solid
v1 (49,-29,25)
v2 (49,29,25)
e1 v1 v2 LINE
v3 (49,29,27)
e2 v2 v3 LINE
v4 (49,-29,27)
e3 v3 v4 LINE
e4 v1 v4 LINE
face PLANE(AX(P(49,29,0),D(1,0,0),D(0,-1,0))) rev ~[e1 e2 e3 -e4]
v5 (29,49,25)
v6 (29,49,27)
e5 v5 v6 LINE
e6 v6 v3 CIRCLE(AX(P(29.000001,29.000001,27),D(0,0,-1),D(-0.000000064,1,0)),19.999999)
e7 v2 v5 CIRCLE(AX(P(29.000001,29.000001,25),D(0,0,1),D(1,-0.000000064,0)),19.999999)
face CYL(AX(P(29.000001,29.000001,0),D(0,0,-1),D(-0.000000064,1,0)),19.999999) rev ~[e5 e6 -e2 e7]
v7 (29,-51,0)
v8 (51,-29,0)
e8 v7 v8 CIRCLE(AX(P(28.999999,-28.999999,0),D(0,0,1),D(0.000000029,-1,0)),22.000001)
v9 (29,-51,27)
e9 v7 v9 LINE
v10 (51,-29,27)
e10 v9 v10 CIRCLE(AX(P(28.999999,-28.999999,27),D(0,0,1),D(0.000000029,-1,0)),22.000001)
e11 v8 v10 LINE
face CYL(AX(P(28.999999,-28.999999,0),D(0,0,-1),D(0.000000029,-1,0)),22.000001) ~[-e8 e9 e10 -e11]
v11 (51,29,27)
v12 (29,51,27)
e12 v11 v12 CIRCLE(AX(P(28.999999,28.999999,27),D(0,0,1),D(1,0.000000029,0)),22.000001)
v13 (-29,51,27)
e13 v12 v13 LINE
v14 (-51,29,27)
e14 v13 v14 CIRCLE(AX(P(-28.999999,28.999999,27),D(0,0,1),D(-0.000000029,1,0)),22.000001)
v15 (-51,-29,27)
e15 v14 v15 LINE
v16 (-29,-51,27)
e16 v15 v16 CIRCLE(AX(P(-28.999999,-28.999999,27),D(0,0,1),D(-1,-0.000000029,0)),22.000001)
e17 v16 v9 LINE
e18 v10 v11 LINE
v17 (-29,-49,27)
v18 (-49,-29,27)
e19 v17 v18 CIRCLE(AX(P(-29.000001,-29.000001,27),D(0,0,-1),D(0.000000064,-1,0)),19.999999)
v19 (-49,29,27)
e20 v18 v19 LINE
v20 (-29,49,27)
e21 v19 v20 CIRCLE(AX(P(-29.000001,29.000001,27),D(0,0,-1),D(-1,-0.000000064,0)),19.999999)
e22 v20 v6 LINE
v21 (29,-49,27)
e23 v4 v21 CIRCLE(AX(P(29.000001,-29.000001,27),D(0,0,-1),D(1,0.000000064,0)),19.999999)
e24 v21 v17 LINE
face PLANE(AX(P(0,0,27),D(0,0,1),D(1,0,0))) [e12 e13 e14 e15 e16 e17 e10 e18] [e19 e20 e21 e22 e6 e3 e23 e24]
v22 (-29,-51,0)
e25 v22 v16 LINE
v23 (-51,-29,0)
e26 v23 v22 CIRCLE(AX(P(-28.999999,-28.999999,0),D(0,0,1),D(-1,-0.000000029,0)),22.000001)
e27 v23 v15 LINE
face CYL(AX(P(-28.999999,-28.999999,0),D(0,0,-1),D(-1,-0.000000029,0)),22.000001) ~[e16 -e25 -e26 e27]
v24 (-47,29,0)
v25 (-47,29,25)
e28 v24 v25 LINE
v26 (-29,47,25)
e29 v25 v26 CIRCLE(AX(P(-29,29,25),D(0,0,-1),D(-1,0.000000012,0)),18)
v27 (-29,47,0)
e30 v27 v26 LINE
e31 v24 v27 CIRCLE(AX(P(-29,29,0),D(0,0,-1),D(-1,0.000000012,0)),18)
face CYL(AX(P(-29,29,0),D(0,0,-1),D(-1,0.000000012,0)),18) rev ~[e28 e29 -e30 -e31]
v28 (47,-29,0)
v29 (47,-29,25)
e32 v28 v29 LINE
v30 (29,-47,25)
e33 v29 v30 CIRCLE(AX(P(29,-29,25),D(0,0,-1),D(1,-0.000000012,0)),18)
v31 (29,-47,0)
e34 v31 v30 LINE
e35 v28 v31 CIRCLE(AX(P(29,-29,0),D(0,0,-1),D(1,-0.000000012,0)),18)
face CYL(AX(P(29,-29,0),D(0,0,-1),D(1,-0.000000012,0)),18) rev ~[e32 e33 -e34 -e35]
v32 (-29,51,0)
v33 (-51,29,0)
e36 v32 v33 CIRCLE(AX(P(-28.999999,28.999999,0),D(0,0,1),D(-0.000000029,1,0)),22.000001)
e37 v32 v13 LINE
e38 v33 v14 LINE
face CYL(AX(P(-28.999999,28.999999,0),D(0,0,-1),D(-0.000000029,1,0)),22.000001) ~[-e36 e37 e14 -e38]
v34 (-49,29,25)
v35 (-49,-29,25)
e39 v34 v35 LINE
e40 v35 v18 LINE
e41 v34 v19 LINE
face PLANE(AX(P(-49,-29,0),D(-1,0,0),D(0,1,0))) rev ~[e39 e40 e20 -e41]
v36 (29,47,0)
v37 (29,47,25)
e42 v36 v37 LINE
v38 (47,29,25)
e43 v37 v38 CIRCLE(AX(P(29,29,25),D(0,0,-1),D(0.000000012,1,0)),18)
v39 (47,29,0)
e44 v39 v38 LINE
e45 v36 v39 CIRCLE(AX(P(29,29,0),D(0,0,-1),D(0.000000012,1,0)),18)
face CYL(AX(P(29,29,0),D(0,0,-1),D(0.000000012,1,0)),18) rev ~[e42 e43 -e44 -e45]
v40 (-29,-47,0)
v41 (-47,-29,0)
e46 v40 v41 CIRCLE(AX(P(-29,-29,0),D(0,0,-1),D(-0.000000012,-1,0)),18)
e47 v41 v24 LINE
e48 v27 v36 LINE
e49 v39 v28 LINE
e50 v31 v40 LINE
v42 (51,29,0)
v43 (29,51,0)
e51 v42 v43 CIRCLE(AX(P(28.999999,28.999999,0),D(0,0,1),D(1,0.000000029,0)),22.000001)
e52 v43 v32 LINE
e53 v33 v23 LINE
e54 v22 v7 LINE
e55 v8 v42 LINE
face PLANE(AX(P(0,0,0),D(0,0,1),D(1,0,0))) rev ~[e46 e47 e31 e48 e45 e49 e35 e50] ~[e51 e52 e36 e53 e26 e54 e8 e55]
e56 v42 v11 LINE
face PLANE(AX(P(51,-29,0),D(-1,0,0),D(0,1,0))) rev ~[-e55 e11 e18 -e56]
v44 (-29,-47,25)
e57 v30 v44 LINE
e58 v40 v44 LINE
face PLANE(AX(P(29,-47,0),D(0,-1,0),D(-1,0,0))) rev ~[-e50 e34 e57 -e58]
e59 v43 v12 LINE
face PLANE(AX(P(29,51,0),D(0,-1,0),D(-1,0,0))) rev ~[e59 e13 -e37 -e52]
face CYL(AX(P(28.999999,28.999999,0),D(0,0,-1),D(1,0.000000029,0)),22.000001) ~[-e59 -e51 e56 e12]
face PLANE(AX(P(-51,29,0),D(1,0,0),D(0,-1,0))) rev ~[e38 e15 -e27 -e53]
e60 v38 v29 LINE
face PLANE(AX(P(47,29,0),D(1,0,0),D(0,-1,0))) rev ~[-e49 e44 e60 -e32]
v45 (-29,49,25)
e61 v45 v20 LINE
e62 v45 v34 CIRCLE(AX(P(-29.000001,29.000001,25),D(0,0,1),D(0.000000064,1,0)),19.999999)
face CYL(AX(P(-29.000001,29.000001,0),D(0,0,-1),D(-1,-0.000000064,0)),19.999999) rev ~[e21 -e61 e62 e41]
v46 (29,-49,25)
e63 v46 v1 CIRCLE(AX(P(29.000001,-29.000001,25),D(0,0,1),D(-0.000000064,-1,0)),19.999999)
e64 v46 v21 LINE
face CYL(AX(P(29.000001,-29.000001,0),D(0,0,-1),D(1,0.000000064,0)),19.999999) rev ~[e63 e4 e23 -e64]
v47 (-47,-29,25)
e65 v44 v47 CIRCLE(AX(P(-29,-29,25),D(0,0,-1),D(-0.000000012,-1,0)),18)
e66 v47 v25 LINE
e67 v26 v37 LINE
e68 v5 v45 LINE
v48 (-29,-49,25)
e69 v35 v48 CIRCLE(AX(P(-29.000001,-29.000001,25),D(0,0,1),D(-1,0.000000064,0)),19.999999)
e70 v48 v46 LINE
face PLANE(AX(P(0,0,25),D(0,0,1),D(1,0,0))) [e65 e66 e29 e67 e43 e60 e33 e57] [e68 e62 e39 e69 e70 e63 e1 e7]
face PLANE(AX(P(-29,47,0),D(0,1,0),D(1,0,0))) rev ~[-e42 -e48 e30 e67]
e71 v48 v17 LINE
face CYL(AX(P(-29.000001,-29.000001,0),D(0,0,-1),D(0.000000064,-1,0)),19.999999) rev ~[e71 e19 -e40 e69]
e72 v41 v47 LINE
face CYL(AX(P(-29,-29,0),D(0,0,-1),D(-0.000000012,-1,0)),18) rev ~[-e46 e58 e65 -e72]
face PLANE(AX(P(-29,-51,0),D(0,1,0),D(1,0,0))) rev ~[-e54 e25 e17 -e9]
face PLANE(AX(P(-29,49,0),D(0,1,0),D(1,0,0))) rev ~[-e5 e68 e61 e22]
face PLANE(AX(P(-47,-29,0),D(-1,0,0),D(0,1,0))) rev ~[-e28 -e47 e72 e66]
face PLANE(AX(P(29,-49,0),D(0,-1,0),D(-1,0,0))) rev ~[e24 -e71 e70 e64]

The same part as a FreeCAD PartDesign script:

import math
import FreeCAD as App
import Part
import Sketcher

V = App.Vector

doc = App.newDocument("Part")
body = doc.addObject("PartDesign::Body", "Body")

sketch1 = doc.addObject("Sketcher::SketchObject", "Sketch")
body.addObject(sketch1)
sketch1.AttachmentSupport = (doc.XY_Plane, [""])
sketch1.MapMode = "FlatFace"
sketch1.addGeometry(Part.LineSegment(V(29, 49, 0), V(-29, 49, 0)), False)
sketch1.addGeometry(Part.ArcOfCircle(Part.Circle(V(-29, 29, 0), V(0, 0, 1), 20), math.radians(90), math.radians(180)), False)
sketch1.addGeometry(Part.LineSegment(V(-49, 29, 0), V(-49, -29, 0)), False)
sketch1.addGeometry(Part.ArcOfCircle(Part.Circle(V(-29, -29, 0), V(0, 0, 1), 20), math.radians(180), math.radians(270)), False)
sketch1.addGeometry(Part.LineSegment(V(-29, -49, 0), V(29, -49, 0)), False)
sketch1.addGeometry(Part.ArcOfCircle(Part.Circle(V(29, -29, 0), V(0, 0, 1), 20), math.radians(-90), math.radians(0)), False)
sketch1.addGeometry(Part.LineSegment(V(49, -29, 0), V(49, 29, 0)), False)
sketch1.addGeometry(Part.ArcOfCircle(Part.Circle(V(29, 29, 0), V(0, 0, 1), 20), math.radians(0), math.radians(90)), False)
sketch1.addGeometry(Part.LineSegment(V(-47, -29, 0), V(-47, 29, 0)), False)
sketch1.addGeometry(Part.ArcOfCircle(Part.Circle(V(-29, 29, 0), V(0, 0, 1), 18), math.radians(90), math.radians(180)), False)
sketch1.addGeometry(Part.LineSegment(V(-29, 47, 0), V(29, 47, 0)), False)
sketch1.addGeometry(Part.ArcOfCircle(Part.Circle(V(29, 29, 0), V(0, 0, 1), 18), math.radians(0), math.radians(90)), False)
sketch1.addGeometry(Part.LineSegment(V(47, 29, 0), V(47, -29, 0)), False)
sketch1.addGeometry(Part.ArcOfCircle(Part.Circle(V(29, -29, 0), V(0, 0, 1), 18), math.radians(-90), math.radians(0)), False)
sketch1.addGeometry(Part.LineSegment(V(29, -47, 0), V(-29, -47, 0)), False)
sketch1.addGeometry(Part.ArcOfCircle(Part.Circle(V(-29, -29, 0), V(0, 0, 1), 18), math.radians(-180), math.radians(-90)), False)
sketch1.addConstraint(Sketcher.Constraint("Tangent", 0, 2, 1, 1))
sketch1.addConstraint(Sketcher.Constraint("Tangent", 1, 2, 2, 1))
sketch1.addConstraint(Sketcher.Constraint("Tangent", 2, 2, 3, 1))
sketch1.addConstraint(Sketcher.Constraint("Tangent", 3, 2, 4, 1))
sketch1.addConstraint(Sketcher.Constraint("Tangent", 4, 2, 5, 1))
sketch1.addConstraint(Sketcher.Constraint("Tangent", 5, 2, 6, 1))
sketch1.addConstraint(Sketcher.Constraint("Tangent", 6, 2, 7, 1))
sketch1.addConstraint(Sketcher.Constraint("Tangent", 7, 2, 0, 1))
sketch1.addConstraint(Sketcher.Constraint("Tangent", 8, 2, 9, 2))
sketch1.addConstraint(Sketcher.Constraint("Tangent", 9, 1, 10, 1))
sketch1.addConstraint(Sketcher.Constraint("Tangent", 10, 2, 11, 2))
sketch1.addConstraint(Sketcher.Constraint("Tangent", 11, 1, 12, 1))
sketch1.addConstraint(Sketcher.Constraint("Tangent", 12, 2, 13, 2))
sketch1.addConstraint(Sketcher.Constraint("Tangent", 13, 1, 14, 1))
sketch1.addConstraint(Sketcher.Constraint("Tangent", 14, 2, 15, 2))
sketch1.addConstraint(Sketcher.Constraint("Tangent", 15, 1, 8, 1))
sketch1.addConstraint(Sketcher.Constraint("Horizontal", 0))
sketch1.addConstraint(Sketcher.Constraint("Vertical", 2))
sketch1.addConstraint(Sketcher.Constraint("Horizontal", 4))
sketch1.addConstraint(Sketcher.Constraint("Vertical", 6))
sketch1.addConstraint(Sketcher.Constraint("Vertical", 8))
sketch1.addConstraint(Sketcher.Constraint("Horizontal", 10))
sketch1.addConstraint(Sketcher.Constraint("Vertical", 12))
sketch1.addConstraint(Sketcher.Constraint("Horizontal", 14))
sketch1.addConstraint(Sketcher.Constraint("Coincident", 9, 3, 1, 3))
sketch1.addConstraint(Sketcher.Constraint("Coincident", 11, 3, 7, 3))
sketch1.addConstraint(Sketcher.Constraint("Coincident", 13, 3, 5, 3))
sketch1.addConstraint(Sketcher.Constraint("Equal", 1, 3))
sketch1.addConstraint(Sketcher.Constraint("Equal", 3, 5))
sketch1.addConstraint(Sketcher.Constraint("Equal", 5, 7))
sketch1.addConstraint(Sketcher.Constraint("Equal", 13, 15))
sketch1.addConstraint(Sketcher.Constraint("Symmetric", 1, 3, 5, 3, -1, 1))
sketch1.addConstraint(Sketcher.Constraint("Equal", 14, 2))
sketch1.addConstraint(Sketcher.Constraint("Radius", 1, 19.999999))
sketch1.addConstraint(Sketcher.Constraint("Radius", 9, 18.0))
sketch1.addConstraint(Sketcher.Constraint("DistanceX", 0, 2, 0, 1, 58.0))
pad1 = doc.addObject("PartDesign::Pad", "Pad")
body.addObject(pad1)
pad1.Profile = sketch1
pad1.Length = 25

sketch2 = doc.addObject("Sketcher::SketchObject", "Sketch001")
body.addObject(sketch2)
sketch2.AttachmentSupport = (doc.XY_Plane, [""])
sketch2.MapMode = "FlatFace"
sketch2.addGeometry(Part.LineSegment(V(29, 51, 0), V(-29, 51, 0)), False)
sketch2.addGeometry(Part.ArcOfCircle(Part.Circle(V(-29, 29, 0), V(0, 0, 1), 22), math.radians(90), math.radians(180)), False)
sketch2.addGeometry(Part.LineSegment(V(-51, 29, 0), V(-51, -29, 0)), False)
sketch2.addGeometry(Part.ArcOfCircle(Part.Circle(V(-29, -29, 0), V(0, 0, 1), 22), math.radians(-180), math.radians(-90)), False)
sketch2.addGeometry(Part.LineSegment(V(-29, -51, 0), V(29, -51, 0)), False)
sketch2.addGeometry(Part.ArcOfCircle(Part.Circle(V(29, -29, 0), V(0, 0, 1), 22), math.radians(-90), math.radians(0)), False)
sketch2.addGeometry(Part.LineSegment(V(51, -29, 0), V(51, 29, 0)), False)
sketch2.addGeometry(Part.ArcOfCircle(Part.Circle(V(29, 29, 0), V(0, 0, 1), 22), math.radians(0), math.radians(90)), False)
sketch2.addGeometry(Part.LineSegment(V(-49, -29, 0), V(-49, 29, 0)), False)
sketch2.addGeometry(Part.ArcOfCircle(Part.Circle(V(-29, 29, 0), V(0, 0, 1), 20), math.radians(90), math.radians(180)), False)
sketch2.addGeometry(Part.LineSegment(V(-29, 49, 0), V(29, 49, 0)), False)
sketch2.addGeometry(Part.ArcOfCircle(Part.Circle(V(29, 29, 0), V(0, 0, 1), 20), math.radians(0), math.radians(90)), False)
sketch2.addGeometry(Part.LineSegment(V(49, 29, 0), V(49, -29, 0)), False)
sketch2.addGeometry(Part.ArcOfCircle(Part.Circle(V(29, -29, 0), V(0, 0, 1), 20), math.radians(-90), math.radians(0)), False)
sketch2.addGeometry(Part.LineSegment(V(29, -49, 0), V(-29, -49, 0)), False)
sketch2.addGeometry(Part.ArcOfCircle(Part.Circle(V(-29, -29, 0), V(0, 0, 1), 20), math.radians(180), math.radians(270)), False)
sketch2.addConstraint(Sketcher.Constraint("Tangent", 0, 2, 1, 1))
sketch2.addConstraint(Sketcher.Constraint("Tangent", 1, 2, 2, 1))
sketch2.addConstraint(Sketcher.Constraint("Tangent", 2, 2, 3, 1))
sketch2.addConstraint(Sketcher.Constraint("Tangent", 3, 2, 4, 1))
sketch2.addConstraint(Sketcher.Constraint("Tangent", 4, 2, 5, 1))
sketch2.addConstraint(Sketcher.Constraint("Tangent", 5, 2, 6, 1))
sketch2.addConstraint(Sketcher.Constraint("Tangent", 6, 2, 7, 1))
sketch2.addConstraint(Sketcher.Constraint("Tangent", 7, 2, 0, 1))
sketch2.addConstraint(Sketcher.Constraint("Tangent", 8, 2, 9, 2))
sketch2.addConstraint(Sketcher.Constraint("Tangent", 9, 1, 10, 1))
sketch2.addConstraint(Sketcher.Constraint("Tangent", 10, 2, 11, 2))
sketch2.addConstraint(Sketcher.Constraint("Tangent", 11, 1, 12, 1))
sketch2.addConstraint(Sketcher.Constraint("Tangent", 12, 2, 13, 2))
sketch2.addConstraint(Sketcher.Constraint("Tangent", 13, 1, 14, 1))
sketch2.addConstraint(Sketcher.Constraint("Tangent", 14, 2, 15, 2))
sketch2.addConstraint(Sketcher.Constraint("Tangent", 15, 1, 8, 1))
sketch2.addConstraint(Sketcher.Constraint("Horizontal", 0))
sketch2.addConstraint(Sketcher.Constraint("Vertical", 2))
sketch2.addConstraint(Sketcher.Constraint("Horizontal", 4))
sketch2.addConstraint(Sketcher.Constraint("Vertical", 6))
sketch2.addConstraint(Sketcher.Constraint("Vertical", 8))
sketch2.addConstraint(Sketcher.Constraint("Horizontal", 10))
sketch2.addConstraint(Sketcher.Constraint("Vertical", 12))
sketch2.addConstraint(Sketcher.Constraint("Horizontal", 14))
sketch2.addConstraint(Sketcher.Constraint("Coincident", 9, 3, 1, 3))
sketch2.addConstraint(Sketcher.Constraint("Coincident", 11, 3, 7, 3))
sketch2.addConstraint(Sketcher.Constraint("Coincident", 13, 3, 5, 3))
sketch2.addConstraint(Sketcher.Constraint("Equal", 1, 3))
sketch2.addConstraint(Sketcher.Constraint("Equal", 3, 5))
sketch2.addConstraint(Sketcher.Constraint("Equal", 5, 7))
sketch2.addConstraint(Sketcher.Constraint("Equal", 13, 15))
sketch2.addConstraint(Sketcher.Constraint("Symmetric", 1, 3, 5, 3, -1, 1))
sketch2.addConstraint(Sketcher.Constraint("Equal", 14, 2))
sketch2.addConstraint(Sketcher.Constraint("Radius", 1, 22.000001))
sketch2.addConstraint(Sketcher.Constraint("Radius", 9, 19.999999))
sketch2.addConstraint(Sketcher.Constraint("DistanceX", 0, 2, 0, 1, 58.0))
pad2 = doc.addObject("PartDesign::Pad", "Pad001")
body.addObject(pad2)
pad2.Profile = sketch2
pad2.Length = 27

doc.recompute()
